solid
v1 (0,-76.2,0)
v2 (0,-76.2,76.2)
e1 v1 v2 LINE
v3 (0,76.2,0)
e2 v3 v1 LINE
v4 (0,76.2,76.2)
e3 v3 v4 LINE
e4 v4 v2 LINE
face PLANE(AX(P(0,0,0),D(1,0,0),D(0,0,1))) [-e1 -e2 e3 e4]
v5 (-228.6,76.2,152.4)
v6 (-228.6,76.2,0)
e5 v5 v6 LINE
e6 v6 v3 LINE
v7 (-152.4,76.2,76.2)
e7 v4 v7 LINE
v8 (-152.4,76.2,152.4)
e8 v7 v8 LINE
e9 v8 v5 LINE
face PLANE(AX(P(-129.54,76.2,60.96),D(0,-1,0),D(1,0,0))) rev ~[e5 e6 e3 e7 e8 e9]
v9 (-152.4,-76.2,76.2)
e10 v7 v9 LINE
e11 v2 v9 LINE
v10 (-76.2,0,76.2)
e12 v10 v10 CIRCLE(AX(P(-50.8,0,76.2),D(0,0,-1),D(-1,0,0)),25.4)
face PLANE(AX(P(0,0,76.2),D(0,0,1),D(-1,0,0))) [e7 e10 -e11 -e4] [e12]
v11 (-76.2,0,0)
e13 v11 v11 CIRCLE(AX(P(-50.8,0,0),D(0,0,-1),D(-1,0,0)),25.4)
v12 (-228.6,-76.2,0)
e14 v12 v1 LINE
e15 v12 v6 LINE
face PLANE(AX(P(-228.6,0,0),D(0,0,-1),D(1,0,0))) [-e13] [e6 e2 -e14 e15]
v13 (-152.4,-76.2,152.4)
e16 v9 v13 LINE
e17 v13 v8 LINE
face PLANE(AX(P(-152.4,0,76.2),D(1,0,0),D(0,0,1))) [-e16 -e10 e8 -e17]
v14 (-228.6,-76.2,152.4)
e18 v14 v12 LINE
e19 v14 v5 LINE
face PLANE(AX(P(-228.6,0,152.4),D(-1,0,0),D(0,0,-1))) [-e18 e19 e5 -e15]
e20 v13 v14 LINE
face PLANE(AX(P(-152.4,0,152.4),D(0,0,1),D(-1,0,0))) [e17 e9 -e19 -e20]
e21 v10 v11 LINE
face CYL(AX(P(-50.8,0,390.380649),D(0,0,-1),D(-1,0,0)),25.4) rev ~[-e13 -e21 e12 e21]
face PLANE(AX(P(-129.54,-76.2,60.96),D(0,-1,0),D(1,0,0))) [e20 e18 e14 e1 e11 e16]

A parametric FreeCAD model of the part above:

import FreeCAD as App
import Part
import Sketcher
from FreeCAD import Vector
Q = App.Units.Quantity

doc = App.newDocument("Part")
params = doc.addObject("Spreadsheet::Sheet", "Params")
for row, (alias, value) in enumerate([
    ("sketch1_width", "9 in"),
    ("pad1_length", "6 in"),
    ("sketch2_diameter", "2 in"),
    ("hole_diameter", "2 in"),
], start=1):
    params.set(f"A{row}", alias)
    params.set(f"B{row}", "=" + value)
    params.setAlias(f"B{row}", alias)

body = doc.addObject("PartDesign::Body", "Body")

sketch1 = body.newObject("Sketcher::SketchObject", "Sketch")
sketch1.AttachmentSupport = (doc.getObject("XZ_Plane"), [""])
sketch1.MapMode = "FlatFace"
sketch1.addGeometry([
    Part.LineSegment(Vector(-229, 0, 0), Vector(0, 0, 0)),
    Part.LineSegment(Vector(0, 0, 0), Vector(0, 76, 0)),
    Part.LineSegment(Vector(0, 76, 0), Vector(-152, 76, 0)),
    Part.LineSegment(Vector(-152, 76, 0), Vector(-152, 152, 0)),
    Part.LineSegment(Vector(-152, 152, 0), Vector(-229, 152, 0)),
    Part.LineSegment(Vector(-229, 152, 0), Vector(-229, 0, 0)),
], False)
sketch1.addConstraint([
    Sketcher.Constraint("Coincident", 0, 2, 1, 1),
    Sketcher.Constraint("Coincident", 1, 2, 2, 1),
    Sketcher.Constraint("Coincident", 2, 2, 3, 1),
    Sketcher.Constraint("Coincident", 3, 2, 4, 1),
    Sketcher.Constraint("Coincident", 4, 2, 5, 1),
    Sketcher.Constraint("Coincident", 5, 2, 0, 1),
    Sketcher.Constraint("Horizontal", 0),
    Sketcher.Constraint("Vertical", 1),
    Sketcher.Constraint("Horizontal", 2),
    Sketcher.Constraint("Vertical", 3),
    Sketcher.Constraint("Horizontal", 4),
    Sketcher.Constraint("Vertical", 5),
    Sketcher.Constraint("Coincident", 0, 2, -1, 1),
    Sketcher.Constraint("Equal", 4, 1),
    Sketcher.Constraint("Equal", 1, 3),
    Sketcher.Constraint("Equal", 2, 5),
    Sketcher.Constraint("DistanceX", 0, 1, 0, 2, Q("9 in")),
])
sketch1.setExpression("Constraints[16]", "Params.sketch1_width")
pad1 = body.newObject("PartDesign::Pad", "Pad")
pad1.Profile = sketch1
pad1.setExpression("Length", "Params.pad1_length")
pad1.Midplane = True

sketch2 = body.newObject("Sketcher::SketchObject", "Sketch001")
sketch2.AttachmentSupport = (doc.getObject("XY_Plane"), [""])
sketch2.MapMode = "FlatFace"
sketch2.AttachmentOffset = App.Placement(Vector(0, 0, 3 * 25.4), App.Rotation())
sketch2.addGeometry(Part.Circle(Vector(-51, 0, 0), Vector(0, 0, 1), 25), False)
sketch2.addConstraint([
    Sketcher.Constraint("PointOnObject", 0, 3, -1),
    Sketcher.Constraint("Diameter", 0, Q("2 in")),
    Sketcher.Constraint("DistanceX", 0, 3, -1, 1, Q("2 in")),
])
sketch2.setExpression("Constraints[1]", "Params.sketch2_diameter")
doc.recompute()
hole = body.newObject("PartDesign::Hole", "Hole")
hole.Profile = sketch2
hole.ThreadType = "None"
hole.setExpression("Diameter", "Params.hole_diameter")
hole.DepthType = "ThroughAll"

doc.recompute()
